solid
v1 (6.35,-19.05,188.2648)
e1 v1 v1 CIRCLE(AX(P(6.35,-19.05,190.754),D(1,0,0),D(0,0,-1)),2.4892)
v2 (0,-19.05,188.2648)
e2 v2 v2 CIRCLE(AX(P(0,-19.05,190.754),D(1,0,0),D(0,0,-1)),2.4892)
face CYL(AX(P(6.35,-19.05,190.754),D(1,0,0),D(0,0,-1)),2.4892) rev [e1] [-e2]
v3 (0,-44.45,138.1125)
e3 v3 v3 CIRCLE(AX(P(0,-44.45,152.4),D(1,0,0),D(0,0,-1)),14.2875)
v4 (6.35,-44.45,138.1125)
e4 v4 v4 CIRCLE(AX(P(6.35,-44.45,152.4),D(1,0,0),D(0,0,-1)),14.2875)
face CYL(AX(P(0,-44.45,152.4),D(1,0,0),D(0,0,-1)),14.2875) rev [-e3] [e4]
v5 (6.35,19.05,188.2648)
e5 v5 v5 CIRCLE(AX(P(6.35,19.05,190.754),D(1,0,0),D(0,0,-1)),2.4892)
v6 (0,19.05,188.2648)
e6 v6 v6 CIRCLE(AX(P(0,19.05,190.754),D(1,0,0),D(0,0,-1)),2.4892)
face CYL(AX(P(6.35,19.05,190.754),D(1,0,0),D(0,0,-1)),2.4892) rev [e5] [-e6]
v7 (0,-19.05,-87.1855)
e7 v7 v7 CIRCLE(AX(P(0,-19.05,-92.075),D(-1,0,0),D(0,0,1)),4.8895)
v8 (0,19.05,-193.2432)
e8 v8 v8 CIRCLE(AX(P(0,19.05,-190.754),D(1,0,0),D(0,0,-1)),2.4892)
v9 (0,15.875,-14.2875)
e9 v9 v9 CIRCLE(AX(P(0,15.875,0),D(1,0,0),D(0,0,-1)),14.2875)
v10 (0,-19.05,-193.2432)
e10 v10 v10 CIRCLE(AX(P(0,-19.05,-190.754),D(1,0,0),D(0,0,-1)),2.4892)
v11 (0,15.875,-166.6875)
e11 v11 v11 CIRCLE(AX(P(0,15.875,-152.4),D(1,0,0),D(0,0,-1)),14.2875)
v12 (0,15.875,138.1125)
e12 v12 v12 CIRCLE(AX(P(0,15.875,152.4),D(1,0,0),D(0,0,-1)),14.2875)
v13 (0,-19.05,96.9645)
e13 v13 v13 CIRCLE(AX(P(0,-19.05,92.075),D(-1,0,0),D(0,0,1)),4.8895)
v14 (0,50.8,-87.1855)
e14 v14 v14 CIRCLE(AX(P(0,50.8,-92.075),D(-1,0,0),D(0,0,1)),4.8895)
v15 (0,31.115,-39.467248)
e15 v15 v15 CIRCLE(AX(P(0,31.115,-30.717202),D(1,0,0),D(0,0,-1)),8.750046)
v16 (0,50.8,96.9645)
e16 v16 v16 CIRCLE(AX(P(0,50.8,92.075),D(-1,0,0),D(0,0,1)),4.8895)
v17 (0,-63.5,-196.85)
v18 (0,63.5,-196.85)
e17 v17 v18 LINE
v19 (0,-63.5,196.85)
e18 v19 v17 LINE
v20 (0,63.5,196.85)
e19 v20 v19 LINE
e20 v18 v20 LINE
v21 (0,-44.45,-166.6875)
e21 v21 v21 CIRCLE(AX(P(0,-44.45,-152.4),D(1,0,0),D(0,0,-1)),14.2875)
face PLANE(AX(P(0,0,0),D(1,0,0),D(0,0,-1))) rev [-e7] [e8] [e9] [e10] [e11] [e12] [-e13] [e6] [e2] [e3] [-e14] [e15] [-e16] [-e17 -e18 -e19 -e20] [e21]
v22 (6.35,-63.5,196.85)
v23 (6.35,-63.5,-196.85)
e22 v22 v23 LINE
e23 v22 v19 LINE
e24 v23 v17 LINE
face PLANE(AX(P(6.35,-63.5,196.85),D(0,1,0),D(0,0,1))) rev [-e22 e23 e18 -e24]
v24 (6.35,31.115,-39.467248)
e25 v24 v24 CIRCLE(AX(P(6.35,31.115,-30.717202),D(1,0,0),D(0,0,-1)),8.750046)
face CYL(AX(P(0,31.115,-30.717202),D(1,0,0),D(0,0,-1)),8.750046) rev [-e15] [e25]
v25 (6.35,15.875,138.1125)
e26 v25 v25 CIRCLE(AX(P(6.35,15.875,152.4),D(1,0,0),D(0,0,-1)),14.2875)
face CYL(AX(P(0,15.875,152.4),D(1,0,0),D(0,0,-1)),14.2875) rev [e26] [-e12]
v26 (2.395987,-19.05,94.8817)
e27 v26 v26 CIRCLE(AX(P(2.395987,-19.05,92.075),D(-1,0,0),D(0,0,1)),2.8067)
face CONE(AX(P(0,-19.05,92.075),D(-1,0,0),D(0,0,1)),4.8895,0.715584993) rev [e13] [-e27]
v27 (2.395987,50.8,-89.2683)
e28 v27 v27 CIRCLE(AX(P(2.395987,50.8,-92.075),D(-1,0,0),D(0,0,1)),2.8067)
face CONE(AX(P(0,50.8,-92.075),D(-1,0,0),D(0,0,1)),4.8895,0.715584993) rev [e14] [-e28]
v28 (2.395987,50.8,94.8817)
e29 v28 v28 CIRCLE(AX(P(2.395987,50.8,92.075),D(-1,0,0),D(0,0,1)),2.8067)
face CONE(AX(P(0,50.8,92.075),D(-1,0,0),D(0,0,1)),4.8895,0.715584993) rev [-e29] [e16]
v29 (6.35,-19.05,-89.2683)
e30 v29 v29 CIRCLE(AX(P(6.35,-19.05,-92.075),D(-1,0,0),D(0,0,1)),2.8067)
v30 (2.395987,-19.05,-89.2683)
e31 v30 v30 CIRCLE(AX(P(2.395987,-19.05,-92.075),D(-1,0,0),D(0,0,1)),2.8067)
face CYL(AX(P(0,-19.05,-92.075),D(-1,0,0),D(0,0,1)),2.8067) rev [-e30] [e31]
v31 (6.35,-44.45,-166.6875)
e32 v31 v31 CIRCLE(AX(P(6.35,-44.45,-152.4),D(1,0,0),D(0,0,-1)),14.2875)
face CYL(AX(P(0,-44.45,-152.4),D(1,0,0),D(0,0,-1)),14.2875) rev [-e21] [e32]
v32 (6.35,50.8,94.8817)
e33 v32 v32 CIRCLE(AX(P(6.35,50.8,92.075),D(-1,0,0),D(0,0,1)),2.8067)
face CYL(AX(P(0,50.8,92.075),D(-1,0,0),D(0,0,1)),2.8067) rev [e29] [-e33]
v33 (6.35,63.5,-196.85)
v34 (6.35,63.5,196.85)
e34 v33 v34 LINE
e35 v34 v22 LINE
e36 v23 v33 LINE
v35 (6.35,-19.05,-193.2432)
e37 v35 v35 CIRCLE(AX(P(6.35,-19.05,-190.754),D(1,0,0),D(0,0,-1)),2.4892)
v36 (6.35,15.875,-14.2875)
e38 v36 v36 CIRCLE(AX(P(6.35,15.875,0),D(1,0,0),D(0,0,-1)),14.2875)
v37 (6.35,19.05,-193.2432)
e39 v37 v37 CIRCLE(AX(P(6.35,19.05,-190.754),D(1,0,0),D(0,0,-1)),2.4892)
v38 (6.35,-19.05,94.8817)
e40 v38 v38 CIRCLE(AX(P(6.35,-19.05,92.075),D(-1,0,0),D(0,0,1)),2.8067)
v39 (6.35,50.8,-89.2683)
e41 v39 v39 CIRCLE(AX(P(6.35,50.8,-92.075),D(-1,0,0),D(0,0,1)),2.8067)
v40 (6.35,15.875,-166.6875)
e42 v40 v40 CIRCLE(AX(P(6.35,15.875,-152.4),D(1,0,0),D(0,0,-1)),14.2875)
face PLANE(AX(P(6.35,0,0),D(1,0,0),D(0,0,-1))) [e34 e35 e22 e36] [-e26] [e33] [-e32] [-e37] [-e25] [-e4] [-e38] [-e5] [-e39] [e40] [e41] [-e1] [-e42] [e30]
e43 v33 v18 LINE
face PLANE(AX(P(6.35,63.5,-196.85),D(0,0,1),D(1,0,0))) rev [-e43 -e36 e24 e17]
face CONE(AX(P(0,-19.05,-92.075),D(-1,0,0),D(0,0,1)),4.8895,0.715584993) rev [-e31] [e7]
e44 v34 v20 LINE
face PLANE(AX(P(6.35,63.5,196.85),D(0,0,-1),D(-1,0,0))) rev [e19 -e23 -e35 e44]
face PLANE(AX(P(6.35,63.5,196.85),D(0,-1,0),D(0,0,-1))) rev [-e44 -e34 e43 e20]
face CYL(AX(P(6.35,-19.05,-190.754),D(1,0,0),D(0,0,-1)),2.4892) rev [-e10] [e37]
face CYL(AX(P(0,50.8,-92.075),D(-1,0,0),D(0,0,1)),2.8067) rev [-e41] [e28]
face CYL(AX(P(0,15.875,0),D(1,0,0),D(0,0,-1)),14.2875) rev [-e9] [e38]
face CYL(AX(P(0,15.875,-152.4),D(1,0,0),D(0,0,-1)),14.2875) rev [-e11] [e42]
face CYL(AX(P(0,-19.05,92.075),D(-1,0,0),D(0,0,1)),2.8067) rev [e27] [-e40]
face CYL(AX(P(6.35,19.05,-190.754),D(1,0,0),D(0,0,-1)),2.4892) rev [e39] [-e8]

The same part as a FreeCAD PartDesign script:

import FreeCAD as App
import Part
import Sketcher

V = App.Vector
Q = App.Units.Quantity


def add_polygon(sketch, points):
    """Adds a closed chain of lines whose ends are joined by coincident constraints."""
    first, n = sketch.GeometryCount, len(points)
    for a, b in zip(points, points[1:] + points[:1]):
        sketch.addGeometry(Part.LineSegment(App.Vector(*a, 0), App.Vector(*b, 0)), False)
    for i in range(n):
        sketch.addConstraint(Sketcher.Constraint("Coincident", first + i, 2, first + (i + 1) % n, 1))

doc = App.newDocument("Part")
body = doc.addObject("PartDesign::Body", "Body")

# Sketch on YZ plane
sketch1 = body.newObject("Sketcher::SketchObject", "Sketch")
sketch1.AttachmentSupport = (doc.getObject("YZ_Plane"), [""])
sketch1.MapMode = "FlatFace"
add_polygon(sketch1, [(63.5, 196.85), (-63.5, 196.85), (-63.5, -196.85), (63.5, -196.85)])  # lines 0-3
sketch1.addConstraint([
    Sketcher.Constraint("Horizontal", 0),
    Sketcher.Constraint("Vertical", 1),
    Sketcher.Constraint("Horizontal", 2),
    Sketcher.Constraint("Vertical", 3),
    Sketcher.Constraint("Symmetric", 0, 2, 2, 2, -1, 1),
    Sketcher.Constraint("DistanceX", 0, 2, 0, 1, Q("5 in")),
    Sketcher.Constraint("DistanceY", 1, 2, 1, 1, Q("15.5 in")),
])
pad1 = body.newObject("PartDesign::Pad", "Pad")
pad1.Profile = sketch1
pad1.Length = Q("0.25 in")

# Sketch on YZ plane
sketch2 = body.newObject("Sketcher::SketchObject", "Sketch001")
sketch2.AttachmentSupport = (doc.getObject("YZ_Plane"), [""])
sketch2.MapMode = "FlatFace"
sketch2.AttachmentOffset = App.Placement(V(0, 0, 0.25 * 25.4), App.Rotation())
sketch2.addGeometry([
    Part.Circle(V(15.875, 0, 0), V(0, 0, 1), 14.2875),  # 0
    Part.Circle(V(15.875, 152.4, 0), V(0, 0, 1), 14.2875),  # 1
    Part.Circle(V(15.875, -152.4, 0), V(0, 0, 1), 14.2875),  # 2
    Part.Circle(V(-44.45, 152.4, 0), V(0, 0, 1), 14.2875),  # 3
    Part.Circle(V(-44.45, -152.4, 0), V(0, 0, 1), 14.2875),  # 4
    Part.Circle(V(31.115, -30.717202, 0), V(0, 0, 1), 8.750046),  # 5
], False)
sketch2.addConstraint([
    Sketcher.Constraint("Equal", 0, 1),
    Sketcher.Constraint("Equal", 1, 2),
    Sketcher.Constraint("Equal", 2, 3),
    Sketcher.Constraint("Equal", 3, 4),
    Sketcher.Constraint("Symmetric", 1, 3, 2, 3, -1),
    Sketcher.Constraint("Symmetric", 3, 3, 4, 3, -1),
    Sketcher.Constraint("PointOnObject", 0, 3, -1),
    Sketcher.Constraint("Horizontal", 1, 3, 3, 3),
    Sketcher.Constraint("Vertical", 0, 3, 1, 3),
    Sketcher.Constraint("Diameter", 0, Q("1.125 in")),
    Sketcher.Constraint("DistanceY", -1, 1, 1, 3, Q("6 in")),
    Sketcher.Constraint("DistanceX", 0, 3, 5, 3, Q("0.6 in")),
    Sketcher.Constraint("DistanceX", 3, 3, -1, 1, Q("1.75 in")),
    Sketcher.Constraint("Diameter", 5, 17.500092),
    Sketcher.Constraint("DistanceX", -1, 1, 0, 3, Q("0.625 in")),
    Sketcher.Constraint("DistanceY", 5, 3, -1, 1, 30.717202),
])
pocket1 = body.newObject("PartDesign::Pocket", "Pocket")
pocket1.Profile = sketch2
pocket1.Type = "ThroughAll"

# Sketch on YZ plane
sketch3 = body.newObject("Sketcher::SketchObject", "Sketch002")
sketch3.AttachmentSupport = (doc.getObject("YZ_Plane"), [""])
sketch3.MapMode = "FlatFace"
sketch3.AttachmentOffset = App.Placement(V(0, 0, 0.25 * 25.4), App.Rotation())
sketch3.addGeometry([
    Part.Circle(V(19.05, 190.754, 0), V(0, 0, 1), 2.4892),
    Part.Circle(V(-19.05, 190.754, 0), V(0, 0, 1), 2.4892),
    Part.Circle(V(19.05, -190.754, 0), V(0, 0, 1), 2.4892),
    Part.Circle(V(-19.05, -190.754, 0), V(0, 0, 1), 2.4892),
], False)
sketch3.addConstraint([
    Sketcher.Constraint("Equal", 0, 1),
    Sketcher.Constraint("Equal", 1, 2),
    Sketcher.Constraint("Equal", 2, 3),
    Sketcher.Constraint("Symmetric", 1, 3, 2, 3, -1, 1),
    Sketcher.Constraint("Symmetric", 0, 3, 3, 3, -1, 1),
    Sketcher.Constraint("Symmetric", 0, 3, 1, 3, -2),
    Sketcher.Constraint("Diameter", 0, Q("0.196 in")),
    Sketcher.Constraint("DistanceX", 1, 3, 0, 3, Q("1.5 in")),
    Sketcher.Constraint("DistanceY", -1, 1, 0, 3, Q("7.51 in")),
])
doc.recompute()
hole = body.newObject("PartDesign::Hole", "Hole")
hole.Profile = sketch3
hole.ThreadType = "None"
hole.Diameter = Q("0.196 in")
hole.DepthType = "ThroughAll"

# Sketch on YZ plane
sketch4 = body.newObject("Sketcher::SketchObject", "Sketch003")
sketch4.AttachmentSupport = (doc.getObject("YZ_Plane"), [""])
sketch4.MapMode = "FlatFace"
sketch4.addGeometry([
    Part.Circle(V(50.8, -92.075, 0), V(0, 0, 1), 2.8067),
    Part.Circle(V(-19.05, -92.075, 0), V(0, 0, 1), 2.8067),
    Part.Circle(V(-19.05, 92.075, 0), V(0, 0, 1), 2.8067),
    Part.Circle(V(50.8, 92.075, 0), V(0, 0, 1), 2.8067),
], False)
sketch4.addConstraint([
    Sketcher.Constraint("Equal", 0, 1),
    Sketcher.Constraint("Equal", 1, 2),
    Sketcher.Constraint("Equal", 2, 3),
    Sketcher.Constraint("Symmetric", 1, 3, 2, 3, -1),
    Sketcher.Constraint("Symmetric", 0, 3, 3, 3, -1),
    Sketcher.Constraint("Horizontal", 0, 3, 1, 3),
    Sketcher.Constraint("Diameter", 0, Q("0.221 in")),
    Sketcher.Constraint("DistanceX", -1, 1, 0, 3, Q("2 in")),
    Sketcher.Constraint("DistanceX", 1, 3, -1, 1, Q("0.75 in")),
    Sketcher.Constraint("DistanceY", 1, 3, 2, 3, Q("7.25 in")),
])
doc.recompute()
hole2 = body.newObject("PartDesign::Hole", "Hole001")
hole2.Profile = sketch4
hole2.ThreadType = "None"
hole2.Diameter = Q("0.221 in")
hole2.DepthType = "ThroughAll"
hole2.HoleCutType = "Countersink"
hole2.HoleCutDiameter = Q("0.385 in")
hole2.HoleCutCountersinkAngle = 82
hole2.Reversed = True

doc.recompute()
